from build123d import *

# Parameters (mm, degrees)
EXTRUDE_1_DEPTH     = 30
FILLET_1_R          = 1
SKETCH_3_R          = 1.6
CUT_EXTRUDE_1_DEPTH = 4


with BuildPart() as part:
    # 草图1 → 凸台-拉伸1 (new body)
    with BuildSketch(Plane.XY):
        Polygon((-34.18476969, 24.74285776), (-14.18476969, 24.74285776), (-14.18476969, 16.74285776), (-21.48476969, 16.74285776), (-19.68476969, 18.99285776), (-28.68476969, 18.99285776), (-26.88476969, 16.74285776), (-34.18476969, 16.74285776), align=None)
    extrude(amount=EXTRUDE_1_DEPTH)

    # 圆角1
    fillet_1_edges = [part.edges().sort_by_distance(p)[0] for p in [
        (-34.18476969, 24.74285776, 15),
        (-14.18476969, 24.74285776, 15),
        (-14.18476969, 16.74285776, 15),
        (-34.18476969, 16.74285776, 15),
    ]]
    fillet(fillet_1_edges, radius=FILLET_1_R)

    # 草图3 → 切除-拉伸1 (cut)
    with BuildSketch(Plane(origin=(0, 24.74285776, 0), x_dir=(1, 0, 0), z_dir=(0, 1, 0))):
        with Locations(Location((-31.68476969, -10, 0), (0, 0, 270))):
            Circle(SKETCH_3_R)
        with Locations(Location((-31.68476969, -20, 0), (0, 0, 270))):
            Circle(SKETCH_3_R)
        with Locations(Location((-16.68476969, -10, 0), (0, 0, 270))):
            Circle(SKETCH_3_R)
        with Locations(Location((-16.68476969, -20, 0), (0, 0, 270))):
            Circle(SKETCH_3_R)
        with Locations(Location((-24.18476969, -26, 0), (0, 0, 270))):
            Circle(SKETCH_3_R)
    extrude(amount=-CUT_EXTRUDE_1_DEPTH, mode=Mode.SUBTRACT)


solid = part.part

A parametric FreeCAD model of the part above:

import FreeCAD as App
import Part
import Sketcher
from FreeCAD import Vector


def edges_at(feature, points):
    """Names of the edges that pass closest to the given points."""
    edges = feature.Shape.Edges
    near = lambda p: min(range(len(edges)), key=lambda i: edges[i].distToShape(Part.Vertex(*p))[0])
    return sorted({f"Edge{near(p) + 1}" for p in points})


def add_polygon(sketch, points):
    """Adds a closed chain of lines whose ends are joined by coincident constraints."""
    first, n = sketch.GeometryCount, len(points)
    for a, b in zip(points, points[1:] + points[:1]):
        sketch.addGeometry(Part.LineSegment(App.Vector(*a, 0), App.Vector(*b, 0)), False)
    for i in range(n):
        sketch.addConstraint(Sketcher.Constraint("Coincident", first + i, 2, first + (i + 1) % n, 1))

doc = App.newDocument("Part")
params = doc.addObject("Spreadsheet::Sheet", "Params")
for row, (alias, value) in enumerate([
    ("sketch1_width", "20 mm"),
    ("sketch1_width2", "9 mm"),
    ("sketch1_height", "8 mm"),
    ("sketch1_width3", "7.3 mm"),
    ("pad1_length", "30 mm"),
    ("fillet_radius", "1 mm"),
    ("sketch2_diameter", "3.2 mm"),
    ("pocket1_length", "4 mm"),
], start=1):
    params.set(f"A{row}", alias)
    params.set(f"B{row}", "=" + value)
    params.setAlias(f"B{row}", alias)

body = doc.addObject("PartDesign::Body", "Body")

# Sketch on XY plane
sketch1 = body.newObject("Sketcher::SketchObject", "Sketch")
sketch1.AttachmentSupport = (doc.getObject("XY_Plane"), [""])
sketch1.MapMode = "FlatFace"
add_polygon(sketch1, [(-14.18477, 24.742858), (-34.18477, 24.742858), (-34.18477, 16.742858), (-26.88477, 16.742858), (-28.68477, 18.992858), (-19.68477, 18.992858), (-21.48477, 16.742858), (-14.18477, 16.742858)])  # lines 0-7
sketch1.addConstraint([
    Sketcher.Constraint("Horizontal", 0),
    Sketcher.Constraint("Vertical", 1),
    Sketcher.Constraint("Horizontal", 2),
    Sketcher.Constraint("Horizontal", 4),
    Sketcher.Constraint("Horizontal", 6),
    Sketcher.Constraint("Vertical", 7),
    Sketcher.Constraint("Horizontal", 2, 2, 5, 2),
    Sketcher.Constraint("Equal", 2, 6),
    Sketcher.Constraint("Equal", 3, 5),
    Sketcher.Constraint("DistanceX", 0, 2, 0, 1, 20.0),
    Sketcher.Constraint("DistanceX", 4, 1, 4, 2, 9.0),
    Sketcher.Constraint("DistanceY", 1, 2, 1, 1, 8.0),
    Sketcher.Constraint("DistanceX", 2, 1, 2, 2, 7.3),
    Sketcher.Constraint("DistanceY", 2, 2, 3, 2, 2.25),
    Sketcher.Constraint("DistanceX", 0, 2, -1, 1, 34.18477),
    Sketcher.Constraint("DistanceY", -1, 1, 0, 2, 24.742858),
])
sketch1.setExpression("Constraints[17]", "Params.sketch1_width")
sketch1.setExpression("Constraints[18]", "Params.sketch1_width2")
sketch1.setExpression("Constraints[19]", "Params.sketch1_height")
sketch1.setExpression("Constraints[20]", "Params.sketch1_width3")
pad1 = body.newObject("PartDesign::Pad", "Pad")
pad1.Profile = sketch1
pad1.setExpression("Length", "Params.pad1_length")
doc.recompute()

fillet = body.newObject("PartDesign::Fillet", "Fillet")
fillet.Base = (pad1, edges_at(pad1, [
    (-34.185, 24.743, 15),
    (-14.185, 24.743, 15),
    (-14.185, 16.743, 15),
    (-34.185, 16.743, 15),
]))
fillet.setExpression("Radius", "Params.fillet_radius")

# Sketch on XZ plane
sketch2 = body.newObject("Sketcher::SketchObject", "Sketch001")
sketch2.AttachmentSupport = (doc.getObject("XZ_Plane"), [""])
sketch2.MapMode = "FlatFace"
sketch2.AttachmentOffset = App.Placement(Vector(0, 0, -24.742858), App.Rotation())
sketch2.addGeometry([
    Part.Circle(Vector(-31.68477, 10, 0), Vector(0, 0, 1), 1.6),  # 0
    Part.Circle(Vector(-31.68477, 20, 0), Vector(0, 0, 1), 1.6),  # 1
    Part.Circle(Vector(-16.68477, 10, 0), Vector(0, 0, 1), 1.6),  # 2
    Part.Circle(Vector(-16.68477, 20, 0), Vector(0, 0, 1), 1.6),  # 3
    Part.Circle(Vector(-24.18477, 26, 0), Vector(0, 0, 1), 1.6),  # 4
], False)
sketch2.addConstraint([
    Sketcher.Constraint("Equal", 0, 1),
    Sketcher.Constraint("Equal", 1, 2),
    Sketcher.Constraint("Equal", 2, 3),
    Sketcher.Constraint("Equal", 3, 4),
    Sketcher.Constraint("Horizontal", 0, 3, 2, 3),
    Sketcher.Constraint("Horizontal", 1, 3, 3, 3),
    Sketcher.Constraint("Vertical", 0, 3, 1, 3),
    Sketcher.Constraint("Vertical", 2, 3, 3, 3),
    Sketcher.Constraint("Diameter", 0, 3.2),
    Sketcher.Constraint("DistanceY", -1, 1, 0, 3, 10.0),
    Sketcher.Constraint("DistanceY", -1, 1, 1, 3, 20.0),
    Sketcher.Constraint("DistanceY", -1, 1, 4, 3, 26.0),
    Sketcher.Constraint("DistanceX", 0, 3, 2, 3, 15.0),
    Sketcher.Constraint("DistanceX", 1, 3, 4, 3, 7.5),
    Sketcher.Constraint("DistanceX", 0, 3, -1, 1, 31.68477),
])
sketch2.setExpression("Constraints[8]", "Params.sketch2_diameter")
pocket1 = body.newObject("PartDesign::Pocket", "Pocket")
pocket1.Profile = sketch2
pocket1.setExpression("Length", "Params.pocket1_length")
pocket1.Reversed = True

doc.recompute()
